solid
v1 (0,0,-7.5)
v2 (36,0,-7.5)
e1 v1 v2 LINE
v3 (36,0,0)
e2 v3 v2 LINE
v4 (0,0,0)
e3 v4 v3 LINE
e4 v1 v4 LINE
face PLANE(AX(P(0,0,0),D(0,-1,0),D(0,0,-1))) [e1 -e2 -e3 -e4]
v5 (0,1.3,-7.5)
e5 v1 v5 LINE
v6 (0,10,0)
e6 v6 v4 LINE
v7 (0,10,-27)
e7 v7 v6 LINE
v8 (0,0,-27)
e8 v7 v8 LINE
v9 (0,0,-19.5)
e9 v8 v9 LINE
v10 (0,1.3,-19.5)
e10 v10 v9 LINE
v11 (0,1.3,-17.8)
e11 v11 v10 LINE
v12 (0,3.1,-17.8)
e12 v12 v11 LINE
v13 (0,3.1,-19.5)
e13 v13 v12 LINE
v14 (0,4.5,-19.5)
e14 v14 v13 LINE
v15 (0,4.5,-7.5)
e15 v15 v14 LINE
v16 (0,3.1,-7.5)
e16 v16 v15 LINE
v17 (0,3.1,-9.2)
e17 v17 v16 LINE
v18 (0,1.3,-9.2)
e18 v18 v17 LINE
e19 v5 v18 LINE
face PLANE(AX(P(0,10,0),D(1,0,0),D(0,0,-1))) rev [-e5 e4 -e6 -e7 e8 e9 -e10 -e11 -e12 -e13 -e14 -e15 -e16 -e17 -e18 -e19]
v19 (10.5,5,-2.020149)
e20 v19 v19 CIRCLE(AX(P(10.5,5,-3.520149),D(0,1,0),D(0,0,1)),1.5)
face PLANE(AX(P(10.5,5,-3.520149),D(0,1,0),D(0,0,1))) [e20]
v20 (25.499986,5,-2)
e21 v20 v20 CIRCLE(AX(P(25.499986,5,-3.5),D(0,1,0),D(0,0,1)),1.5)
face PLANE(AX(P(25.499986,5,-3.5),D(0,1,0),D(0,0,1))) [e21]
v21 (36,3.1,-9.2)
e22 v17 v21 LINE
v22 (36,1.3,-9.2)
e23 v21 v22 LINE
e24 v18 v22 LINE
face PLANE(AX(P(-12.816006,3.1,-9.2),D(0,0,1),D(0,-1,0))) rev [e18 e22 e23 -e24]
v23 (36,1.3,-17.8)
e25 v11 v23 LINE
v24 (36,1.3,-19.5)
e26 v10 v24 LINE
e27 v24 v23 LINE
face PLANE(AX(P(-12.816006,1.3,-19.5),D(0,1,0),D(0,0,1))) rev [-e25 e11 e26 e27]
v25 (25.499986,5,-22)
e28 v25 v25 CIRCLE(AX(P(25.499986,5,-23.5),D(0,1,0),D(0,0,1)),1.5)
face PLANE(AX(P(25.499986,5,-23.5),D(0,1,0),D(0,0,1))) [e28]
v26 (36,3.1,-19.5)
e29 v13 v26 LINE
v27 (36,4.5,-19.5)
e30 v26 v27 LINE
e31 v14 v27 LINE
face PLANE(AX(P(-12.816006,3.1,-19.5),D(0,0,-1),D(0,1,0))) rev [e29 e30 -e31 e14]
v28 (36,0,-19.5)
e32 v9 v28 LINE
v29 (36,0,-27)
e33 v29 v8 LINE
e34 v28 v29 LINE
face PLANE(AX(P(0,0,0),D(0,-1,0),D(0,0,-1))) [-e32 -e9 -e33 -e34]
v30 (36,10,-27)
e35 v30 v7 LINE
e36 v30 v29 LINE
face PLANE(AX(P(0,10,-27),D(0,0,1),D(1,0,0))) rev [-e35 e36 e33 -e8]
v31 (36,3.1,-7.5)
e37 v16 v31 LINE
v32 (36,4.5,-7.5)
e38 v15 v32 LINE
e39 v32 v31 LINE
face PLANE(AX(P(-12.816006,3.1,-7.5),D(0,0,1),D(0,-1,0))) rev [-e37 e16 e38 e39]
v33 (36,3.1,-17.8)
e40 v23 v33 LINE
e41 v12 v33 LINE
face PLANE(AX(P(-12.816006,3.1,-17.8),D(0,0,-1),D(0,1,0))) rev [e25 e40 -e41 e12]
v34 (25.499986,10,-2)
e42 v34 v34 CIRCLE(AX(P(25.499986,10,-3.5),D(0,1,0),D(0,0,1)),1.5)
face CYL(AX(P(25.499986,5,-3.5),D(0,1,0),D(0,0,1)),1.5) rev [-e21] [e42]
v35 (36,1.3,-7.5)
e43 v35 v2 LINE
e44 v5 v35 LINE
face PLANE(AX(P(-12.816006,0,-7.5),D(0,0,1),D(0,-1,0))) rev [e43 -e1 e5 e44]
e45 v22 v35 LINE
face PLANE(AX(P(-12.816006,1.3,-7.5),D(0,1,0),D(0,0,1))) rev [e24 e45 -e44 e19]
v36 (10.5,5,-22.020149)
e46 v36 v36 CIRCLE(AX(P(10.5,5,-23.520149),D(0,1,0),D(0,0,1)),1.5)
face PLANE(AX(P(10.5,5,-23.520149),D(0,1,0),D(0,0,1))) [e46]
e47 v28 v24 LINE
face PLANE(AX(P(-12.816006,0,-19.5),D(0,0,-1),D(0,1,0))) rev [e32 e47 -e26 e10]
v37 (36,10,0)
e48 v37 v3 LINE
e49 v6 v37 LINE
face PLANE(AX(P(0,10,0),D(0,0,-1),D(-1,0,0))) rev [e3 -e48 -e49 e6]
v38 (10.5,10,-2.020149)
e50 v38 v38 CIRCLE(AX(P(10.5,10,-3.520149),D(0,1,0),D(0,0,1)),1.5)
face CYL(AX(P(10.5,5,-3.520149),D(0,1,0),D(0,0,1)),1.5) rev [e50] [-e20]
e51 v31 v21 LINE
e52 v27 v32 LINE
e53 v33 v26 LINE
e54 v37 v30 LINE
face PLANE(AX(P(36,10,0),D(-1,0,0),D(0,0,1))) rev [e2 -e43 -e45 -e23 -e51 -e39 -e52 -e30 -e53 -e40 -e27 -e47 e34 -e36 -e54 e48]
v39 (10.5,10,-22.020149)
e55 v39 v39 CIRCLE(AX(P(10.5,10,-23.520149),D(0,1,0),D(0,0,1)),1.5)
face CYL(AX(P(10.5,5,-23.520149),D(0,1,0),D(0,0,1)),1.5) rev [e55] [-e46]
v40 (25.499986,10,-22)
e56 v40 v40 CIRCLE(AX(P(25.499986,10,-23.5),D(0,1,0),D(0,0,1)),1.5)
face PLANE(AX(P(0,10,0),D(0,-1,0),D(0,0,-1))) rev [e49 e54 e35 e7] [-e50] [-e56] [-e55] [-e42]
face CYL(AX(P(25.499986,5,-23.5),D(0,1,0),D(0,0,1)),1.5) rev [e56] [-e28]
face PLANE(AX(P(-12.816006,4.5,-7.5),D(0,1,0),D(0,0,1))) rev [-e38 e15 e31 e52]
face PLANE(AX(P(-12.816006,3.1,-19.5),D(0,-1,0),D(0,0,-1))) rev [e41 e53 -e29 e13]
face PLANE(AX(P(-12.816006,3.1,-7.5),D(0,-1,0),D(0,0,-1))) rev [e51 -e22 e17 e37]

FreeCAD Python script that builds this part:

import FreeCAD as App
import Part
import Sketcher
from FreeCAD import Vector

doc = App.newDocument("Part")
params = doc.addObject("Spreadsheet::Sheet", "Params")
for row, (alias, value) in enumerate([
    ("sketch1_width", "36 mm"),
    ("sketch1_height", "27 mm"),
    ("pad1_length", "10 mm"),
    ("sketch2_diameter", "3 mm"),
    ("pocket1_length", "5 mm"),
    ("sketch3_height", "12 mm"),
    ("sketch3_width", "1.3 mm"),
    ("sketch3_width2", "1.8 mm"),
    ("sketch3_width3", "1.4 mm"),
    ("sketch3_height2", "1.7 mm"),
    ("pocket2_length", "36 mm"),
], start=1):
    params.set(f"A{row}", alias)
    params.set(f"B{row}", "=" + value)
    params.setAlias(f"B{row}", alias)

body = doc.addObject("PartDesign::Body", "Body")

# Sketch on XZ plane
sketch1 = body.newObject("Sketcher::SketchObject", "Sketch")
sketch1.AttachmentSupport = (doc.getObject("XZ_Plane"), [""])
sketch1.MapMode = "FlatFace"
sketch1.addGeometry([
    Part.LineSegment(Vector(0, -27, 0), Vector(0, 0, 0)),
    Part.LineSegment(Vector(0, 0, 0), Vector(36, 0, 0)),
    Part.LineSegment(Vector(36, 0, 0), Vector(36, -27, 0)),
    Part.LineSegment(Vector(36, -27, 0), Vector(0, -27, 0)),
], False)
sketch1.addConstraint([
    Sketcher.Constraint("Coincident", 0, 2, 1, 1),
    Sketcher.Constraint("Coincident", 1, 2, 2, 1),
    Sketcher.Constraint("Coincident", 2, 2, 3, 1),
    Sketcher.Constraint("Coincident", 3, 2, 0, 1),
    Sketcher.Constraint("Vertical", 0),
    Sketcher.Constraint("Horizontal", 1),
    Sketcher.Constraint("Vertical", 2),
    Sketcher.Constraint("Horizontal", 3),
    Sketcher.Constraint("Coincident", 0, 2, -1, 1),
    Sketcher.Constraint("DistanceX", 1, 1, 1, 2, 36.0),
    Sketcher.Constraint("DistanceY", 0, 1, 0, 2, 27.0),
])
sketch1.setExpression("Constraints[9]", "Params.sketch1_width")
sketch1.setExpression("Constraints[10]", "Params.sketch1_height")
pad1 = body.newObject("PartDesign::Pad", "Pad")
pad1.Profile = sketch1
pad1.setExpression("Length", "Params.pad1_length")
pad1.Reversed = True

# Sketch on XZ plane
sketch2 = body.newObject("Sketcher::SketchObject", "Sketch001")
sketch2.AttachmentSupport = (doc.getObject("XZ_Plane"), [""])
sketch2.MapMode = "FlatFace"
sketch2.AttachmentOffset = App.Placement(Vector(0, 0, -10), App.Rotation())
sketch2.addGeometry([
    Part.Circle(Vector(10.5, -23.5, 0), Vector(0, 0, 1), 1.5),
    Part.Circle(Vector(25.5, -23.5, 0), Vector(0, 0, 1), 1.5),
    Part.Circle(Vector(10.5, -3.5, 0), Vector(0, 0, 1), 1.5),
    Part.Circle(Vector(25.5, -3.5, 0), Vector(0, 0, 1), 1.5),
], False)
sketch2.addConstraint([
    Sketcher.Constraint("Equal", 0, 1),
    Sketcher.Constraint("Equal", 1, 2),
    Sketcher.Constraint("Equal", 2, 3),
    Sketcher.Constraint("Vertical", 0, 3, 2, 3),
    Sketcher.Constraint("Vertical", 1, 3, 3, 3),
    Sketcher.Constraint("Diameter", 0, 3.0),
    Sketcher.Constraint("DistanceY", 0, 3, 2, 3, 20.0),
    Sketcher.Constraint("DistanceY", 1, 3, 3, 3, 20.0),
    Sketcher.Constraint("DistanceX", -1, 1, 0, 3, 10.5),
    Sketcher.Constraint("DistanceY", 1, 3, -1, 1, 23.5),
    Sketcher.Constraint("DistanceY", 0, 3, -1, 1, 23.520149),
    Sketcher.Constraint("DistanceX", -1, 1, 1, 3, 25.499986),
])
sketch2.setExpression("Constraints[5]", "Params.sketch2_diameter")
pocket1 = body.newObject("PartDesign::Pocket", "Pocket")
pocket1.Profile = sketch2
pocket1.setExpression("Length", "Params.pocket1_length")
pocket1.Reversed = True

# Sketch on YZ plane
sketch3 = body.newObject("Sketcher::SketchObject", "Sketch002")
sketch3.AttachmentSupport = (doc.getObject("YZ_Plane"), [""])
sketch3.MapMode = "FlatFace"
sketch3.AttachmentOffset = App.Placement(Vector(0, 0, 36), App.Rotation())
sketch3.addGeometry([
    Part.LineSegment(Vector(0, -7.5, 0), Vector(0, -19.5, 0)),  # 0
    Part.LineSegment(Vector(0, -19.5, 0), Vector(1.3, -19.5, 0)),  # 1
    Part.LineSegment(Vector(1.3, -19.5, 0), Vector(1.3, -17.8, 0)),  # 2
    Part.LineSegment(Vector(1.3, -17.8, 0), Vector(3.1, -17.8, 0)),  # 3
    Part.LineSegment(Vector(3.1, -17.8, 0), Vector(3.1, -19.5, 0)),  # 4
    Part.LineSegment(Vector(3.1, -19.5, 0), Vector(4.5, -19.5, 0)),  # 5
    Part.LineSegment(Vector(4.5, -19.5, 0), Vector(4.5, -7.5, 0)),  # 6
    Part.LineSegment(Vector(4.5, -7.5, 0), Vector(3.1, -7.5, 0)),  # 7
    Part.LineSegment(Vector(3.1, -7.5, 0), Vector(3.1, -9.2, 0)),  # 8
    Part.LineSegment(Vector(3.1, -9.2, 0), Vector(1.3, -9.2, 0)),  # 9
    Part.LineSegment(Vector(1.3, -9.2, 0), Vector(1.3, -7.5, 0)),  # 10
    Part.LineSegment(Vector(1.3, -7.5, 0), Vector(0, -7.5, 0)),  # 11
], False)
sketch3.addConstraint([
    Sketcher.Constraint("Coincident", 0, 2, 1, 1),
    Sketcher.Constraint("Coincident", 1, 2, 2, 1),
    Sketcher.Constraint("Coincident", 2, 2, 3, 1),
    Sketcher.Constraint("Coincident", 3, 2, 4, 1),
    Sketcher.Constraint("Coincident", 4, 2, 5, 1),
    Sketcher.Constraint("Coincident", 5, 2, 6, 1),
    Sketcher.Constraint("Coincident", 6, 2, 7, 1),
    Sketcher.Constraint("Coincident", 7, 2, 8, 1),
    Sketcher.Constraint("Coincident", 8, 2, 9, 1),
    Sketcher.Constraint("Coincident", 9, 2, 10, 1),
    Sketcher.Constraint("Coincident", 10, 2, 11, 1),
    Sketcher.Constraint("Coincident", 11, 2, 0, 1),
    Sketcher.Constraint("Vertical", 0),
    Sketcher.Constraint("Horizontal", 1),
    Sketcher.Constraint("Vertical", 2),
    Sketcher.Constraint("Horizontal", 3),
    Sketcher.Constraint("Vertical", 4),
    Sketcher.Constraint("Horizontal", 5),
    Sketcher.Constraint("Vertical", 6),
    Sketcher.Constraint("Horizontal", 7),
    Sketcher.Constraint("Vertical", 8),
    Sketcher.Constraint("Horizontal", 9),
    Sketcher.Constraint("Vertical", 10),
    Sketcher.Constraint("Horizontal", 11),
    Sketcher.Constraint("PointOnObject", 0, 2, -2),
    Sketcher.Constraint("Horizontal", 1, 2, 4, 2),
    Sketcher.Constraint("Horizontal", 7, 2, 10, 2),
    Sketcher.Constraint("Vertical", 4, 2, 7, 2),
    Sketcher.Constraint("Vertical", 2, 2, 9, 2),
    Sketcher.Constraint("Equal", 4, 8),
    Sketcher.Constraint("DistanceY", 0, 2, 0, 1, 12.0),
    Sketcher.Constraint("DistanceX", 1, 1, 1, 2, 1.3),
    Sketcher.Constraint("DistanceX", 3, 1, 3, 2, 1.8),
    Sketcher.Constraint("DistanceX", 5, 1, 5, 2, 1.4),
    Sketcher.Constraint("DistanceY", 2, 1, 2, 2, 1.7),
    Sketcher.Constraint("DistanceY", 0, 2, -1, 1, 19.5),
])
sketch3.setExpression("Constraints[30]", "Params.sketch3_height")
sketch3.setExpression("Constraints[31]", "Params.sketch3_width")
sketch3.setExpression("Constraints[32]", "Params.sketch3_width2")
sketch3.setExpression("Constraints[33]", "Params.sketch3_width3")
sketch3.setExpression("Constraints[34]", "Params.sketch3_height2")
pocket2 = body.newObject("PartDesign::Pocket", "Pocket001")
pocket2.Profile = sketch3
pocket2.setExpression("Length", "Params.pocket2_length")

doc.recompute()
